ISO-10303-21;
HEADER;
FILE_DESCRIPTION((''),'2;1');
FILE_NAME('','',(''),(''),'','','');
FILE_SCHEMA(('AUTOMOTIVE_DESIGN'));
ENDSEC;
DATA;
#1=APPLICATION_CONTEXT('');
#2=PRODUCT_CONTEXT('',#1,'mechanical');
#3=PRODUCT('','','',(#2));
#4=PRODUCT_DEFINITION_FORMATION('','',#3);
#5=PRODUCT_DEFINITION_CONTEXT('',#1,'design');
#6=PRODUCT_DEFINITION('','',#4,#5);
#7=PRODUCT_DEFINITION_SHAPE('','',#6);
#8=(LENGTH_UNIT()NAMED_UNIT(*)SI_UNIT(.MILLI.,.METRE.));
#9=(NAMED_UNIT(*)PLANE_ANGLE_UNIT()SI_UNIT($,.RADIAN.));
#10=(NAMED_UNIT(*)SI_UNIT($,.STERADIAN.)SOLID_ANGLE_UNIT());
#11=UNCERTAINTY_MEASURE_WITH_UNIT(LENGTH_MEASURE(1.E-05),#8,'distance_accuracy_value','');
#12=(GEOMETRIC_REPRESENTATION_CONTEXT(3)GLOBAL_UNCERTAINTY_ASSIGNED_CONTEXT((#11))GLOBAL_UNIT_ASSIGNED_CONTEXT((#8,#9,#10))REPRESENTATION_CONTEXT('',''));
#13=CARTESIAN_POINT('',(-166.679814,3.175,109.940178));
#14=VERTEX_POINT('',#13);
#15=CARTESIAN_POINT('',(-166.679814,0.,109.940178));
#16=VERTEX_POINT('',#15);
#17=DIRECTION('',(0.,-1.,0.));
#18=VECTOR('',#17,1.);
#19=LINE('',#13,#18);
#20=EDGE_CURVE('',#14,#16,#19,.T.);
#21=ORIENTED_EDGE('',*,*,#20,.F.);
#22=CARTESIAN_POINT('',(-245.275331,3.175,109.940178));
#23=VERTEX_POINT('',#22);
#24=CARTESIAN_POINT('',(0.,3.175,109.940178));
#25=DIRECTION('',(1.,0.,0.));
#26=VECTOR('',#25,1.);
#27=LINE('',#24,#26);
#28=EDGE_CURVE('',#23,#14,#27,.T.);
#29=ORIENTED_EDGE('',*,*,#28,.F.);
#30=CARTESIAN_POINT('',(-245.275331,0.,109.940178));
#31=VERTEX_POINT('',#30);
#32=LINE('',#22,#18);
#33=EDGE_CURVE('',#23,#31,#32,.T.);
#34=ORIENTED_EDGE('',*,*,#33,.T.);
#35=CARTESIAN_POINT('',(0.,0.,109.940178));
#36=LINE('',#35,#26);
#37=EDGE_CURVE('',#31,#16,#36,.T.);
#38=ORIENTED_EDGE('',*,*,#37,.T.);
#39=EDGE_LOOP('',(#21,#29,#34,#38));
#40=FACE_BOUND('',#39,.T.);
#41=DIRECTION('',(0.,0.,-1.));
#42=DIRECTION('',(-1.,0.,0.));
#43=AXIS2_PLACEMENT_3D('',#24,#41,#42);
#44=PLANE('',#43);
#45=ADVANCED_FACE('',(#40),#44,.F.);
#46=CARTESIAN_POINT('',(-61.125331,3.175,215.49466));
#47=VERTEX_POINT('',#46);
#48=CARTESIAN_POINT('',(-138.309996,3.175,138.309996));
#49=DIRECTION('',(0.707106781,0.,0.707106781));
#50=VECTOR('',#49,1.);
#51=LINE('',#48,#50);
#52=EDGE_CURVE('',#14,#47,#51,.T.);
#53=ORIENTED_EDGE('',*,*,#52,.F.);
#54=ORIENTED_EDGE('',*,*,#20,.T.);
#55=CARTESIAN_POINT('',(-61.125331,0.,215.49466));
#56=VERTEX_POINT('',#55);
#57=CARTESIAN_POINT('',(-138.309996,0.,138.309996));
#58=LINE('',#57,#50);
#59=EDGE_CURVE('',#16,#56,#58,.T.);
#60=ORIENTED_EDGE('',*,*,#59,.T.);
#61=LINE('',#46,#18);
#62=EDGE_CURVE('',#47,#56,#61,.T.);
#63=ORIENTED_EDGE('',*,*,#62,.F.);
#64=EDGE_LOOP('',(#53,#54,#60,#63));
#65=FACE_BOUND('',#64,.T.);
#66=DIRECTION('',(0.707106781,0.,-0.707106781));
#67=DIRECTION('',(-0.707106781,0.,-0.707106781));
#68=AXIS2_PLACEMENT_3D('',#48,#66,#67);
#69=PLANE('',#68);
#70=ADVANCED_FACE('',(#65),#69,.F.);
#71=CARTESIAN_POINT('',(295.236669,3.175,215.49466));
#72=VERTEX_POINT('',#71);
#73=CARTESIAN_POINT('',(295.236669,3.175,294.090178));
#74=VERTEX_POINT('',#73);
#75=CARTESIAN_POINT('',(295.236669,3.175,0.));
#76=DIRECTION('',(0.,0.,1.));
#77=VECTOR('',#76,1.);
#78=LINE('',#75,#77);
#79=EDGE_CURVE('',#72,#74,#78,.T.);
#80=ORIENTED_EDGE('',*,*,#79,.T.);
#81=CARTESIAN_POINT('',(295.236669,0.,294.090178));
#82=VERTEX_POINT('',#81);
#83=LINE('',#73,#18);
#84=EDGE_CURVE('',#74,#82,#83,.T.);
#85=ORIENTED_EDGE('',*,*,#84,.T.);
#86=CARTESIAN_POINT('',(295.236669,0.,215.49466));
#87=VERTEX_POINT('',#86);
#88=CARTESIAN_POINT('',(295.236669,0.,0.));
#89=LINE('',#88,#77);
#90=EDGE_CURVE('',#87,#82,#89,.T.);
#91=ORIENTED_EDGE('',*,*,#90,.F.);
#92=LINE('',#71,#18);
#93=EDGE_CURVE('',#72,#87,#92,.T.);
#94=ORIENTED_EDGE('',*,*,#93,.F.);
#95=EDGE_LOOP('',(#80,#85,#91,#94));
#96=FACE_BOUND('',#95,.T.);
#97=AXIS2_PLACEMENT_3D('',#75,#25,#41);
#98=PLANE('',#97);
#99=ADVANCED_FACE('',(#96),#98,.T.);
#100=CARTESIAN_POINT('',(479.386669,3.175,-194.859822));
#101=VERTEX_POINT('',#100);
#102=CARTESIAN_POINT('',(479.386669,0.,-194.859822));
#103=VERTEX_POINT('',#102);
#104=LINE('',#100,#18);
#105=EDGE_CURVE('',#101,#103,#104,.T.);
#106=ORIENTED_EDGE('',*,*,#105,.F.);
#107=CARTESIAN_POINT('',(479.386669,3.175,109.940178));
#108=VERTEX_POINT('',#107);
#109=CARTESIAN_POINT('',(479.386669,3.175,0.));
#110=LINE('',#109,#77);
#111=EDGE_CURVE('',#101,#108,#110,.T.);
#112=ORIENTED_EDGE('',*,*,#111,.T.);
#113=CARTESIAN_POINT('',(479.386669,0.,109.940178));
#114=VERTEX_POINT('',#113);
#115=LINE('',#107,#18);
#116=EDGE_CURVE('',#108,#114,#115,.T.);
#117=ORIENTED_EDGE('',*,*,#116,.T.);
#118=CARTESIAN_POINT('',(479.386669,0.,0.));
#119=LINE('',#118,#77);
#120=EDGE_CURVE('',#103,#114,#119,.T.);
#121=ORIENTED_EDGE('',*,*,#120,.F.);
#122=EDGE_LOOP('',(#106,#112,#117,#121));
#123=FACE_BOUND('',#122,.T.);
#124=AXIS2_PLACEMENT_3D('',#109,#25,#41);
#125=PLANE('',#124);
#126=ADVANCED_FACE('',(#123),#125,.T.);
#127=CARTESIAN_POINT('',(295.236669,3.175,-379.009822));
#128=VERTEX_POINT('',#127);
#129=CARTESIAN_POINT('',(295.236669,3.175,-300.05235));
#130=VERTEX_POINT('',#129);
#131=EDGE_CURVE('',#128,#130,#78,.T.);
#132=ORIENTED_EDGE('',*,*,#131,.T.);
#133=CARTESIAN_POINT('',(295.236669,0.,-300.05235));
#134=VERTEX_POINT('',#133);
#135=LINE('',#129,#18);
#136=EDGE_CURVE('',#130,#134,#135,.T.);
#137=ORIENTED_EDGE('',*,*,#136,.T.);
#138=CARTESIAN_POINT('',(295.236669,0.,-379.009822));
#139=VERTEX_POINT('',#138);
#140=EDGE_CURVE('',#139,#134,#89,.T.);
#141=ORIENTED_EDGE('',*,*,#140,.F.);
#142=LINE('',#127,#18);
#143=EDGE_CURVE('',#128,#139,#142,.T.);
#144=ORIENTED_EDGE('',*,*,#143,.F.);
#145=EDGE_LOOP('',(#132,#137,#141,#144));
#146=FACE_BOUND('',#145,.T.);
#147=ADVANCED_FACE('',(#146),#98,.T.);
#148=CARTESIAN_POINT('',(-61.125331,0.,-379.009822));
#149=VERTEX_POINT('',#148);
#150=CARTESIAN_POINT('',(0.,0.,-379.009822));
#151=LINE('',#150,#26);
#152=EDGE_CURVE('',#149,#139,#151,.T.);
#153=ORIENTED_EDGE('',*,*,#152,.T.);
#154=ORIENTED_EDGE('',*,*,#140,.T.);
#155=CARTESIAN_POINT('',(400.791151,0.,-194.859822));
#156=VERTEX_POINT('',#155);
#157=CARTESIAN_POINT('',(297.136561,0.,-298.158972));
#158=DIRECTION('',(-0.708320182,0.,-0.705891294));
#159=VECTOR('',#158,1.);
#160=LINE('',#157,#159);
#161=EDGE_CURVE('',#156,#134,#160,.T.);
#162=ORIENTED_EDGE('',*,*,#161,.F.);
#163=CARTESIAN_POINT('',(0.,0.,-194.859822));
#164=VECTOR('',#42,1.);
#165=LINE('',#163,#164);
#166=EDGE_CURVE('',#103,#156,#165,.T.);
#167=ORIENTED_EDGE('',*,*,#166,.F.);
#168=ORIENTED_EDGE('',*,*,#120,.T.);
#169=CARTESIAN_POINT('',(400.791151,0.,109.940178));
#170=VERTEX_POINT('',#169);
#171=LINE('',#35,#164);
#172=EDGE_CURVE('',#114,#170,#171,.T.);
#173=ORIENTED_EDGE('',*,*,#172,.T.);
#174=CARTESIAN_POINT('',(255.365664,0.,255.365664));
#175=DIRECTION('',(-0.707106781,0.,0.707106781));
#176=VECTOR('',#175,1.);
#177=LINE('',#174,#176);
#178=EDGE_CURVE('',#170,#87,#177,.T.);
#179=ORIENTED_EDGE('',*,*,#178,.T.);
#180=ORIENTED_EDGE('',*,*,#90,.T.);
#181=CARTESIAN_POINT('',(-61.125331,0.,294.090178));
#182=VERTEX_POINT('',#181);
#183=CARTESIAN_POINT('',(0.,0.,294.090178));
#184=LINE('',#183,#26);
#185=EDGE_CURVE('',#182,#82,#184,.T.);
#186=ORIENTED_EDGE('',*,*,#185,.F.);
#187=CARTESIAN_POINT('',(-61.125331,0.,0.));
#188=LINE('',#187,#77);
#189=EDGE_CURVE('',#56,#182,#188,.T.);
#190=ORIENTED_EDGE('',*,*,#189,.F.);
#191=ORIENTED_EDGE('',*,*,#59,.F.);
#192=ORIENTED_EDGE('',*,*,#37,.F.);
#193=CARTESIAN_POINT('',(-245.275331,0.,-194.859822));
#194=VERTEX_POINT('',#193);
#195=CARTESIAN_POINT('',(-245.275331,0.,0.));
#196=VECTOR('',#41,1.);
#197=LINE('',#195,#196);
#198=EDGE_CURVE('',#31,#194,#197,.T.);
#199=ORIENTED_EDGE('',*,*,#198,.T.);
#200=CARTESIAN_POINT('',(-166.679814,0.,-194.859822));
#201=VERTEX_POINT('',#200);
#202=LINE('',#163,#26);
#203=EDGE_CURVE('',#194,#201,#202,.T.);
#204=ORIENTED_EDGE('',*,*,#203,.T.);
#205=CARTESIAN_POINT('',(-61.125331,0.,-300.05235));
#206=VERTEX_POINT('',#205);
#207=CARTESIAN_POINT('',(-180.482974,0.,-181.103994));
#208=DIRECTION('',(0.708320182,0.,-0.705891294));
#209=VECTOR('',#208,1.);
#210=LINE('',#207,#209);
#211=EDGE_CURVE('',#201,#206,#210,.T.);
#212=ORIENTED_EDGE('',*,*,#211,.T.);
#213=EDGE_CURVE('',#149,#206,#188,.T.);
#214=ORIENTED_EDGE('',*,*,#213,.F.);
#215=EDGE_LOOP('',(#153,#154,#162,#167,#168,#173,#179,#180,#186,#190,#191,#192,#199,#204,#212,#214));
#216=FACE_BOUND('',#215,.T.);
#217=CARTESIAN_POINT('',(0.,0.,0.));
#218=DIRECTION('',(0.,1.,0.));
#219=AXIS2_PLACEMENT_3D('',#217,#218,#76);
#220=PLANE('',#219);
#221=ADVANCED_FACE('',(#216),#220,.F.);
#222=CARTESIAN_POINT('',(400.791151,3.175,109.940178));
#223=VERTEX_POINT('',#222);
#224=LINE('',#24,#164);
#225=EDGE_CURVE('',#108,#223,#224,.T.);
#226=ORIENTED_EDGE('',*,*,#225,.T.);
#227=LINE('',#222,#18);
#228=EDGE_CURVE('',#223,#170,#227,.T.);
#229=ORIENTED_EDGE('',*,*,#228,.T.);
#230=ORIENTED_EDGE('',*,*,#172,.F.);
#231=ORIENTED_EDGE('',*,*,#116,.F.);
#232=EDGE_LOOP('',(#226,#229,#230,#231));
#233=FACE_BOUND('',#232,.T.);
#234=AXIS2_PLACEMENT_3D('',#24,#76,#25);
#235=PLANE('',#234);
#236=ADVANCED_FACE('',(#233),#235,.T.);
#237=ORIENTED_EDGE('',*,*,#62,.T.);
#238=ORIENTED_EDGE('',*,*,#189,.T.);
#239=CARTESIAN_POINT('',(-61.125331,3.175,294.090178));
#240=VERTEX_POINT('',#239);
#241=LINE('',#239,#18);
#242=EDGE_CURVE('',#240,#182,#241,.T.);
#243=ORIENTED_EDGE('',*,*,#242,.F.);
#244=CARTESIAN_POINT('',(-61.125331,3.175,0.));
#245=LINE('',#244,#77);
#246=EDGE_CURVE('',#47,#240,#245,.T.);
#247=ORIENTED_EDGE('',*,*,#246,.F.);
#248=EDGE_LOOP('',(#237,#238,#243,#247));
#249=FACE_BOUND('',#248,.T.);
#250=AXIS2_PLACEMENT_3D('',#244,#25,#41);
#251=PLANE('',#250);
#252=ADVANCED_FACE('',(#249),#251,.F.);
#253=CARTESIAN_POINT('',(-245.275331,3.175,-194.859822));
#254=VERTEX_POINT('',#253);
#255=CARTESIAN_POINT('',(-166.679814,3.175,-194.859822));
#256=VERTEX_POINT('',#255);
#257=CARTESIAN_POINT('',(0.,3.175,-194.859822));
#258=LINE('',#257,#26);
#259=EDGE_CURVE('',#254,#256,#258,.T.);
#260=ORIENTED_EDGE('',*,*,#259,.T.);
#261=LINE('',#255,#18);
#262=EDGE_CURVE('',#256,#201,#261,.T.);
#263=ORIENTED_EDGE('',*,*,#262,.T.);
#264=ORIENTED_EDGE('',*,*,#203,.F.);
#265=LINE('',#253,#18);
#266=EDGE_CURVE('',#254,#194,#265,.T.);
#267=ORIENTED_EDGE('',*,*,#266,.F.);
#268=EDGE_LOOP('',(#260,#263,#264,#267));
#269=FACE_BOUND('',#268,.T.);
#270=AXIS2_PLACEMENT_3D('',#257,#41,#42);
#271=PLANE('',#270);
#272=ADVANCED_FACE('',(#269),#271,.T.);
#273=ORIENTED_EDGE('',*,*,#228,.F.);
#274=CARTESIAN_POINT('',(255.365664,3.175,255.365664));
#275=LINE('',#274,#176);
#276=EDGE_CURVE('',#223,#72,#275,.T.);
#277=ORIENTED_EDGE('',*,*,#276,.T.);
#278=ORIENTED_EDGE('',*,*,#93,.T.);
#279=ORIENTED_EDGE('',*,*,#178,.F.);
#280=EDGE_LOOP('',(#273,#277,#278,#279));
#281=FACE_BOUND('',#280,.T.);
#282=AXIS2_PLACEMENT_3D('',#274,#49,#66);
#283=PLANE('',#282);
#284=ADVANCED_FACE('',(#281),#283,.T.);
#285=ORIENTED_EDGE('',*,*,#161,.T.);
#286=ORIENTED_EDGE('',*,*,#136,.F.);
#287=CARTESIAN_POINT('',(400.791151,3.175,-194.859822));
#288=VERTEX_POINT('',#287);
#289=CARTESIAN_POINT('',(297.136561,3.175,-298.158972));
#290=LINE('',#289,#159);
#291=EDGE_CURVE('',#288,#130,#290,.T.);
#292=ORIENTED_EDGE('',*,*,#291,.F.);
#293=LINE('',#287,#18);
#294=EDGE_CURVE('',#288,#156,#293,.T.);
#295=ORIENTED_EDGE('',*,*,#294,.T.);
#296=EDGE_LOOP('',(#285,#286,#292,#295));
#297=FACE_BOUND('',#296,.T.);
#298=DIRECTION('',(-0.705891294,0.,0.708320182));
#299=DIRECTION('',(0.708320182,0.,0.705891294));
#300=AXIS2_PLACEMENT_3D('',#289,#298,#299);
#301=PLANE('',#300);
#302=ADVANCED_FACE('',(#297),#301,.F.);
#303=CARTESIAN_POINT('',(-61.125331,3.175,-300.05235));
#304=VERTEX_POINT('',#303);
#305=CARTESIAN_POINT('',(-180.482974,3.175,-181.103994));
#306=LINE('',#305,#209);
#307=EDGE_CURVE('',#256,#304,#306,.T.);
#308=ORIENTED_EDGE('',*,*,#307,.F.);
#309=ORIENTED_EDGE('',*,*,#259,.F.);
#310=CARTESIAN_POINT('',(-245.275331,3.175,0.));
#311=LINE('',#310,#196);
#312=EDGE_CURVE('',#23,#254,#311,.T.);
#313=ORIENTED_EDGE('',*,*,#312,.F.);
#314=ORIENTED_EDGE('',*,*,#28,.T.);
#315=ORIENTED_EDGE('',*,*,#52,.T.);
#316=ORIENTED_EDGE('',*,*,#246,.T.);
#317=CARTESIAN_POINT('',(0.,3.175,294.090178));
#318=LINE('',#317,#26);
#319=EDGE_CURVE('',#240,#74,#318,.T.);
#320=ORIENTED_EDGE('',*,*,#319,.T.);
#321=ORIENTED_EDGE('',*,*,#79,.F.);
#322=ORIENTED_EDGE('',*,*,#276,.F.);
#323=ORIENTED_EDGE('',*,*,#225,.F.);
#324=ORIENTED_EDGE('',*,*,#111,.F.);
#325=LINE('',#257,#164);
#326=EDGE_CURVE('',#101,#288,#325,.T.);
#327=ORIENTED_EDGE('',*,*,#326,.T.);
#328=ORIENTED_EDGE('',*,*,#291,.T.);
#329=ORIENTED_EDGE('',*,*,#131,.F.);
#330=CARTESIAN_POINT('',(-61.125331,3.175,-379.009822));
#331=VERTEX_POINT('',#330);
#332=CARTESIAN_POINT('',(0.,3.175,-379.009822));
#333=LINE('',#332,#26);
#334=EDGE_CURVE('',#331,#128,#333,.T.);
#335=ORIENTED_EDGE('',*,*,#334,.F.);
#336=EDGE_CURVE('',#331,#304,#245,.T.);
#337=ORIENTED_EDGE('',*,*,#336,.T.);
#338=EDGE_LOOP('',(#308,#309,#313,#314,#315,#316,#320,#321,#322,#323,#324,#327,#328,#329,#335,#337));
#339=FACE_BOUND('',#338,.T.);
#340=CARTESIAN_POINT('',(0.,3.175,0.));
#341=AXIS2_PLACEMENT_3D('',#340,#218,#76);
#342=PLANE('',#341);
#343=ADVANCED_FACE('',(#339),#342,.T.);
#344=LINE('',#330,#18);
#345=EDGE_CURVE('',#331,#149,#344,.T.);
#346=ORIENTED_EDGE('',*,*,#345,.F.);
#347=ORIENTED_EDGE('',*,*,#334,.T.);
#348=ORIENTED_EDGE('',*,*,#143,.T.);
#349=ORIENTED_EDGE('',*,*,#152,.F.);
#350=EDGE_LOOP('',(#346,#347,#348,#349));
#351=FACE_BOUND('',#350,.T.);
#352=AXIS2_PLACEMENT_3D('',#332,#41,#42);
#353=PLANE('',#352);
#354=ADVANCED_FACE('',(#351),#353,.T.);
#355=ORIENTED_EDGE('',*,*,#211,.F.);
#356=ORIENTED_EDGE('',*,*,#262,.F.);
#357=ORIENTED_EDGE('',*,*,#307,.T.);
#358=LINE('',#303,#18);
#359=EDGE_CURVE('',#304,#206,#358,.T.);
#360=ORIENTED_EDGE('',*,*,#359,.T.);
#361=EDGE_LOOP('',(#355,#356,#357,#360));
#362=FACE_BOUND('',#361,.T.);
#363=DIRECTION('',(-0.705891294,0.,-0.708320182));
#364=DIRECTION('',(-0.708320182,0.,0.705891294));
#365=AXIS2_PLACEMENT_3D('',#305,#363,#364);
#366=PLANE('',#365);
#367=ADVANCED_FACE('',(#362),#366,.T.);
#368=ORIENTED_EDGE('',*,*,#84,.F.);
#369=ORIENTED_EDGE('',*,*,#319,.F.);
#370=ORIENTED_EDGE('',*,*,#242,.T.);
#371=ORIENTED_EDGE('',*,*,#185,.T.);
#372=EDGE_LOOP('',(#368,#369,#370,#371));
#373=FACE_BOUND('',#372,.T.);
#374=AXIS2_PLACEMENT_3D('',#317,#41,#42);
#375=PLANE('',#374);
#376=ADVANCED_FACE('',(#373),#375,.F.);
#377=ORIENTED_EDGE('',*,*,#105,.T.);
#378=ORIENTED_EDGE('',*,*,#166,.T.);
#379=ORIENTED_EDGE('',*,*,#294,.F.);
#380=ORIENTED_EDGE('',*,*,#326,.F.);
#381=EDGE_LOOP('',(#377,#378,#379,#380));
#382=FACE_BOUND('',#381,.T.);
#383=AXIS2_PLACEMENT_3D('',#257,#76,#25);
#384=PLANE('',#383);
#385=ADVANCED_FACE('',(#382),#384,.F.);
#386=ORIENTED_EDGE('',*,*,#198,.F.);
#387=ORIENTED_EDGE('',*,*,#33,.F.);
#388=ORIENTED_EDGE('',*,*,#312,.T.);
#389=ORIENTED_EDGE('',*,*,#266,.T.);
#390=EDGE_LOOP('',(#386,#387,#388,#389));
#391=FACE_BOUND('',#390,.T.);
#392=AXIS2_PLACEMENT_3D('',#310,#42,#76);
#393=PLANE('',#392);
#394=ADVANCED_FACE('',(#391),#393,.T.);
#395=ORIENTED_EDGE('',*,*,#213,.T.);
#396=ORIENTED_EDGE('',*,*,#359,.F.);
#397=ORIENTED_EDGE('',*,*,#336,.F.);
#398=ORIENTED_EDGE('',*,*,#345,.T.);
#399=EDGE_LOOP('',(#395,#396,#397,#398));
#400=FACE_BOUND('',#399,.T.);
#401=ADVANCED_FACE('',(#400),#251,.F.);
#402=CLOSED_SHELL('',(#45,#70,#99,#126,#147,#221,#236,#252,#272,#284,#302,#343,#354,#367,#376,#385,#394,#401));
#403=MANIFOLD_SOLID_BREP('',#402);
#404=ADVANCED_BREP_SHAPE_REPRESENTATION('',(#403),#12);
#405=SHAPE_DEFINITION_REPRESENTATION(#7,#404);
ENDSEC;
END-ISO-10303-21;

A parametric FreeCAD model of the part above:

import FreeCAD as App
import Part
import Sketcher
from FreeCAD import Vector
Q = App.Units.Quantity


def add_polygon(sketch, points):
    """Adds a closed chain of lines whose ends are joined by coincident constraints."""
    first, n = sketch.GeometryCount, len(points)
    for a, b in zip(points, points[1:] + points[:1]):
        sketch.addGeometry(Part.LineSegment(App.Vector(*a, 0), App.Vector(*b, 0)), False)
    for i in range(n):
        sketch.addConstraint(Sketcher.Constraint("Coincident", first + i, 2, first + (i + 1) % n, 1))

doc = App.newDocument("Part")
params = doc.addObject("Spreadsheet::Sheet", "Params")
for row, (alias, value) in enumerate([
    ("sketch1_height", "12 in"),
    ("sketch1_width", "14.03 in"),
    ("pad1_length", "0.125 in"),
], start=1):
    params.set(f"A{row}", alias)
    params.set(f"B{row}", "=" + value)
    params.setAlias(f"B{row}", alias)

body = doc.addObject("PartDesign::Body", "Body")

# Sketch on XZ plane
sketch1 = doc.addObject("Sketcher::SketchObject", "Sketch")
body.addObject(sketch1)
sketch1.AttachmentSupport = (doc.XZ_Plane, [""])
sketch1.MapMode = "FlatFace"
add_polygon(sketch1, [(-166.679814, -194.859822), (-245.275331, -194.859822), (-245.275331, 109.940178), (-166.679814, 109.940178), (-61.125331, 215.49466), (-61.125331, 294.090178), (295.236669, 294.090178), (295.236669, 215.49466), (400.791151, 109.940178), (479.386669, 109.940178), (479.386669, -194.859822), (400.791151, -194.859822), (295.236669, -300.05235), (295.236669, -379.009822), (-61.125331, -379.009822), (-61.125331, -300.05235)])  # lines 0-15
sketch1.addConstraint(Sketcher.Constraint("Horizontal", 0))
sketch1.addConstraint(Sketcher.Constraint("Vertical", 1))
sketch1.addConstraint(Sketcher.Constraint("Horizontal", 2))
sketch1.addConstraint(Sketcher.Constraint("Vertical", 4))
sketch1.addConstraint(Sketcher.Constraint("Horizontal", 5))
sketch1.addConstraint(Sketcher.Constraint("Vertical", 6))
sketch1.addConstraint(Sketcher.Constraint("Horizontal", 8))
sketch1.addConstraint(Sketcher.Constraint("Vertical", 9))
sketch1.addConstraint(Sketcher.Constraint("Horizontal", 10))
sketch1.addConstraint(Sketcher.Constraint("Vertical", 12))
sketch1.addConstraint(Sketcher.Constraint("Horizontal", 13))
sketch1.addConstraint(Sketcher.Constraint("Vertical", 14))
sketch1.addConstraint(Sketcher.Constraint("Perpendicular", 3, 7))
sketch1.addConstraint(Sketcher.Constraint("Horizontal", 3, 2, 6, 2))
sketch1.addConstraint(Sketcher.Constraint("Horizontal", 2, 2, 7, 2))
sketch1.addConstraint(Sketcher.Constraint("Horizontal", 0, 2, 9, 2))
sketch1.addConstraint(Sketcher.Constraint("Horizontal", 11, 2, 14, 2))
sketch1.addConstraint(Sketcher.Constraint("Vertical", 7, 2, 10, 2))
sketch1.addConstraint(Sketcher.Constraint("Vertical", 6, 2, 11, 2))
sketch1.addConstraint(Sketcher.Constraint("Vertical", 4, 2, 13, 2))
sketch1.addConstraint(Sketcher.Constraint("Vertical", 2, 2, 15, 2))
sketch1.addConstraint(Sketcher.Constraint("Equal", 2, 8))
sketch1.addConstraint(Sketcher.Constraint("Equal", 10, 4))
sketch1.addConstraint(Sketcher.Constraint("Equal", 3, 7))
sketch1.addConstraint(Sketcher.Constraint("DistanceY", 1, 1, 1, 2, Q("12 in")))
sketch1.addConstraint(Sketcher.Constraint("DistanceX", 5, 1, 5, 2, Q("14.03 in")))
sketch1.addConstraint(Sketcher.Constraint("DistanceX", 1, 2, 3, 2, Q("7.25 in")))
sketch1.addConstraint(Sketcher.Constraint("DistanceY", 12, 2, 10, 2, Q("7.25 in")))
sketch1.addConstraint(Sketcher.Constraint("Distance", 3, 149.27658))
sketch1.addConstraint(Sketcher.Constraint("Distance", 11, 149.020859))
sketch1.addConstraint(Sketcher.Constraint("DistanceX", 0, 2, -1, 1, 245.275331))
sketch1.addConstraint(Sketcher.Constraint("DistanceY", -1, 1, 3, 2, 215.49466))
sketch1.setExpression("Constraints[40]", "Params.sketch1_height")
sketch1.setExpression("Constraints[41]", "Params.sketch1_width")
pad1 = doc.addObject("PartDesign::Pad", "Pad")
body.addObject(pad1)
pad1.Profile = sketch1
pad1.setExpression("Length", "Params.pad1_length")
pad1.Reversed = True

doc.recompute()
